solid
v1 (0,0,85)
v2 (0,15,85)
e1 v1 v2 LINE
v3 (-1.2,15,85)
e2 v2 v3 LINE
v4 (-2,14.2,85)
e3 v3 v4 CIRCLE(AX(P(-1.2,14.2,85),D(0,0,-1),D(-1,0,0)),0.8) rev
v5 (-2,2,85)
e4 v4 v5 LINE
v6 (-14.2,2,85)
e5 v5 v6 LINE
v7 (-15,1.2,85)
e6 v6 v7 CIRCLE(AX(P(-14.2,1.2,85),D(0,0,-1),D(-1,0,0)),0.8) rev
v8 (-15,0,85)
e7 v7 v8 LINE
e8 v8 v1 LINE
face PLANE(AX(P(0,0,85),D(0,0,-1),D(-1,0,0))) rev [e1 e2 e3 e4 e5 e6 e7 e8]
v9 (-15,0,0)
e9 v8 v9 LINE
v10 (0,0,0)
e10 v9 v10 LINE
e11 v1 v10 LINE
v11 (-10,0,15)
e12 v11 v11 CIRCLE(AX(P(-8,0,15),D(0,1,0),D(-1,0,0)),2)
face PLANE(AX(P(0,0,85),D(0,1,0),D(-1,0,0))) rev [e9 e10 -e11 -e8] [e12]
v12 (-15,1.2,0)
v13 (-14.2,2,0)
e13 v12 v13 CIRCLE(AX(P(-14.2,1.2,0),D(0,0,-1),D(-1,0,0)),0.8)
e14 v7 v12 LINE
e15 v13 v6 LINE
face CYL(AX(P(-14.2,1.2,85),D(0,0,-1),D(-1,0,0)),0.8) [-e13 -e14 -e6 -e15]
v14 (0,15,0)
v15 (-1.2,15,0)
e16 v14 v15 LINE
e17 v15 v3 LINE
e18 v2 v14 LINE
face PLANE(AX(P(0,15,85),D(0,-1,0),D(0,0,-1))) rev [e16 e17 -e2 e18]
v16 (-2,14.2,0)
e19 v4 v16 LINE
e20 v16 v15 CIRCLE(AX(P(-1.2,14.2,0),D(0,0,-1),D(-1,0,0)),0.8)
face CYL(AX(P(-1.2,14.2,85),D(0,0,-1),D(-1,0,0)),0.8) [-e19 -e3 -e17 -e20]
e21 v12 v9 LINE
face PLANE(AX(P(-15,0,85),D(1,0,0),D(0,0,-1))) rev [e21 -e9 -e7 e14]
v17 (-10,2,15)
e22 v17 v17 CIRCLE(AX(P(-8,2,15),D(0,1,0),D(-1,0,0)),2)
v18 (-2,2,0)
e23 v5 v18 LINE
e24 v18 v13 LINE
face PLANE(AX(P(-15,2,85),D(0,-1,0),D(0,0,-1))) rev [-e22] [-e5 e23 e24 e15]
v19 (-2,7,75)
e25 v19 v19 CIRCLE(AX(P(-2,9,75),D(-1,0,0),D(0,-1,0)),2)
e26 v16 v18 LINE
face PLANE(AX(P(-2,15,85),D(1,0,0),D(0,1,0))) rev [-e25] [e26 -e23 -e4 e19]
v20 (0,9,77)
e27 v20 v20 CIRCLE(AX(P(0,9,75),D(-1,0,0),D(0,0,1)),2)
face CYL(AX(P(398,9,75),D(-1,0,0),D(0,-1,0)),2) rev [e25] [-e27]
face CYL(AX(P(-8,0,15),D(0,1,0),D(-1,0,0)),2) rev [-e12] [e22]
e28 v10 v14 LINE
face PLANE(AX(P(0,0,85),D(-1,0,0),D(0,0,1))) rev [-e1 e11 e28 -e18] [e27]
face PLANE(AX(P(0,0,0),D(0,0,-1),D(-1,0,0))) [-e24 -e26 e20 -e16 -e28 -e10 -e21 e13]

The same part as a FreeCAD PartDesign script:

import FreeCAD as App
import Part
import Sketcher


def edges_at(feature, points):
    """Names of the edges that pass closest to the given points."""
    edges = feature.Shape.Edges
    near = lambda p: min(range(len(edges)), key=lambda i: edges[i].distToShape(Part.Vertex(*p))[0])
    return sorted({f"Edge{near(p) + 1}" for p in points})

doc = App.newDocument("Part")
body = doc.addObject("PartDesign::Body", "Body")

sketch1 = body.newObject("Sketcher::SketchObject", "Sketch")
sketch1.AttachmentSupport = (doc.getObject("XY_Plane"), [""])
sketch1.MapMode = "FlatFace"
sketch1.addGeometry([
    Part.LineSegment(App.Vector(0, 0, 0), App.Vector(0, 15, 0)),
    Part.LineSegment(App.Vector(0, 15, 0), App.Vector(-2, 15, 0)),
    Part.LineSegment(App.Vector(-2, 15, 0), App.Vector(-2, 2, 0)),
    Part.LineSegment(App.Vector(-2, 2, 0), App.Vector(-15, 2, 0)),
    Part.LineSegment(App.Vector(-15, 2, 0), App.Vector(-15, 0, 0)),
    Part.LineSegment(App.Vector(-15, 0, 0), App.Vector(0, 0, 0)),
], False)
sketch1.addConstraint([
    Sketcher.Constraint("Coincident", 0, 2, 1, 1),
    Sketcher.Constraint("Coincident", 1, 2, 2, 1),
    Sketcher.Constraint("Coincident", 2, 2, 3, 1),
    Sketcher.Constraint("Coincident", 3, 2, 4, 1),
    Sketcher.Constraint("Coincident", 4, 2, 5, 1),
    Sketcher.Constraint("Coincident", 5, 2, 0, 1),
    Sketcher.Constraint("Vertical", 0),
    Sketcher.Constraint("Horizontal", 1),
    Sketcher.Constraint("Vertical", 2),
    Sketcher.Constraint("Horizontal", 3),
    Sketcher.Constraint("Vertical", 4),
    Sketcher.Constraint("Horizontal", 5),
    Sketcher.Constraint("Coincident", 5, 2, -1, 1),
    Sketcher.Constraint("Equal", 5, 0),
    Sketcher.Constraint("Equal", 3, 2),
    Sketcher.Constraint("DistanceX", 1, 2, 1, 1, 2.0),
    Sketcher.Constraint("DistanceX", 3, 2, 3, 1, 13.0),
])
pad1 = body.newObject("PartDesign::Pad", "Pad")
pad1.Profile = sketch1
pad1.Length = 85
doc.recompute()

fillet = body.newObject("PartDesign::Fillet", "Fillet")
fillet.Base = (pad1, edges_at(pad1, [(-15, 2, 42.5), (-2, 15, 42.5)]))
fillet.Radius = 0.8

sketch2 = body.newObject("Sketcher::SketchObject", "Sketch001")
sketch2.AttachmentSupport = (doc.getObject("XZ_Plane"), [""])
sketch2.MapMode = "FlatFace"
sketch2.AttachmentOffset = App.Placement(App.Vector(0, 0, -2), App.Rotation())
sketch2.addGeometry(Part.Circle(App.Vector(-8, 15, 0), App.Vector(0, 0, 1), 2), False)
sketch2.addConstraint([
    Sketcher.Constraint("Diameter", 0, 4.0),
    Sketcher.Constraint("DistanceX", 0, 3, -1, 1, 8.0),
    Sketcher.Constraint("DistanceY", -1, 1, 0, 3, 15.0),
])
pocket1 = body.newObject("PartDesign::Pocket", "Pocket")
pocket1.Profile = sketch2
pocket1.Length = 2
pocket1.Reversed = True

sketch3 = body.newObject("Sketcher::SketchObject", "Sketch002")
sketch3.AttachmentSupport = (doc.getObject("YZ_Plane"), [""])
sketch3.MapMode = "FlatFace"
sketch3.AttachmentOffset = App.Placement(App.Vector(0, 0, -2), App.Rotation())
sketch3.addGeometry(Part.Circle(App.Vector(9, 75, 0), App.Vector(0, 0, 1), 2), False)
sketch3.addConstraint([
    Sketcher.Constraint("Diameter", 0, 4.0),
    Sketcher.Constraint("DistanceX", -1, 1, 0, 3, 9.0),
    Sketcher.Constraint("DistanceY", -1, 1, 0, 3, 75.0),
])
pocket2 = body.newObject("PartDesign::Pocket", "Pocket001")
pocket2.Profile = sketch3
pocket2.Length = 400
pocket2.Reversed = True

doc.recompute()
